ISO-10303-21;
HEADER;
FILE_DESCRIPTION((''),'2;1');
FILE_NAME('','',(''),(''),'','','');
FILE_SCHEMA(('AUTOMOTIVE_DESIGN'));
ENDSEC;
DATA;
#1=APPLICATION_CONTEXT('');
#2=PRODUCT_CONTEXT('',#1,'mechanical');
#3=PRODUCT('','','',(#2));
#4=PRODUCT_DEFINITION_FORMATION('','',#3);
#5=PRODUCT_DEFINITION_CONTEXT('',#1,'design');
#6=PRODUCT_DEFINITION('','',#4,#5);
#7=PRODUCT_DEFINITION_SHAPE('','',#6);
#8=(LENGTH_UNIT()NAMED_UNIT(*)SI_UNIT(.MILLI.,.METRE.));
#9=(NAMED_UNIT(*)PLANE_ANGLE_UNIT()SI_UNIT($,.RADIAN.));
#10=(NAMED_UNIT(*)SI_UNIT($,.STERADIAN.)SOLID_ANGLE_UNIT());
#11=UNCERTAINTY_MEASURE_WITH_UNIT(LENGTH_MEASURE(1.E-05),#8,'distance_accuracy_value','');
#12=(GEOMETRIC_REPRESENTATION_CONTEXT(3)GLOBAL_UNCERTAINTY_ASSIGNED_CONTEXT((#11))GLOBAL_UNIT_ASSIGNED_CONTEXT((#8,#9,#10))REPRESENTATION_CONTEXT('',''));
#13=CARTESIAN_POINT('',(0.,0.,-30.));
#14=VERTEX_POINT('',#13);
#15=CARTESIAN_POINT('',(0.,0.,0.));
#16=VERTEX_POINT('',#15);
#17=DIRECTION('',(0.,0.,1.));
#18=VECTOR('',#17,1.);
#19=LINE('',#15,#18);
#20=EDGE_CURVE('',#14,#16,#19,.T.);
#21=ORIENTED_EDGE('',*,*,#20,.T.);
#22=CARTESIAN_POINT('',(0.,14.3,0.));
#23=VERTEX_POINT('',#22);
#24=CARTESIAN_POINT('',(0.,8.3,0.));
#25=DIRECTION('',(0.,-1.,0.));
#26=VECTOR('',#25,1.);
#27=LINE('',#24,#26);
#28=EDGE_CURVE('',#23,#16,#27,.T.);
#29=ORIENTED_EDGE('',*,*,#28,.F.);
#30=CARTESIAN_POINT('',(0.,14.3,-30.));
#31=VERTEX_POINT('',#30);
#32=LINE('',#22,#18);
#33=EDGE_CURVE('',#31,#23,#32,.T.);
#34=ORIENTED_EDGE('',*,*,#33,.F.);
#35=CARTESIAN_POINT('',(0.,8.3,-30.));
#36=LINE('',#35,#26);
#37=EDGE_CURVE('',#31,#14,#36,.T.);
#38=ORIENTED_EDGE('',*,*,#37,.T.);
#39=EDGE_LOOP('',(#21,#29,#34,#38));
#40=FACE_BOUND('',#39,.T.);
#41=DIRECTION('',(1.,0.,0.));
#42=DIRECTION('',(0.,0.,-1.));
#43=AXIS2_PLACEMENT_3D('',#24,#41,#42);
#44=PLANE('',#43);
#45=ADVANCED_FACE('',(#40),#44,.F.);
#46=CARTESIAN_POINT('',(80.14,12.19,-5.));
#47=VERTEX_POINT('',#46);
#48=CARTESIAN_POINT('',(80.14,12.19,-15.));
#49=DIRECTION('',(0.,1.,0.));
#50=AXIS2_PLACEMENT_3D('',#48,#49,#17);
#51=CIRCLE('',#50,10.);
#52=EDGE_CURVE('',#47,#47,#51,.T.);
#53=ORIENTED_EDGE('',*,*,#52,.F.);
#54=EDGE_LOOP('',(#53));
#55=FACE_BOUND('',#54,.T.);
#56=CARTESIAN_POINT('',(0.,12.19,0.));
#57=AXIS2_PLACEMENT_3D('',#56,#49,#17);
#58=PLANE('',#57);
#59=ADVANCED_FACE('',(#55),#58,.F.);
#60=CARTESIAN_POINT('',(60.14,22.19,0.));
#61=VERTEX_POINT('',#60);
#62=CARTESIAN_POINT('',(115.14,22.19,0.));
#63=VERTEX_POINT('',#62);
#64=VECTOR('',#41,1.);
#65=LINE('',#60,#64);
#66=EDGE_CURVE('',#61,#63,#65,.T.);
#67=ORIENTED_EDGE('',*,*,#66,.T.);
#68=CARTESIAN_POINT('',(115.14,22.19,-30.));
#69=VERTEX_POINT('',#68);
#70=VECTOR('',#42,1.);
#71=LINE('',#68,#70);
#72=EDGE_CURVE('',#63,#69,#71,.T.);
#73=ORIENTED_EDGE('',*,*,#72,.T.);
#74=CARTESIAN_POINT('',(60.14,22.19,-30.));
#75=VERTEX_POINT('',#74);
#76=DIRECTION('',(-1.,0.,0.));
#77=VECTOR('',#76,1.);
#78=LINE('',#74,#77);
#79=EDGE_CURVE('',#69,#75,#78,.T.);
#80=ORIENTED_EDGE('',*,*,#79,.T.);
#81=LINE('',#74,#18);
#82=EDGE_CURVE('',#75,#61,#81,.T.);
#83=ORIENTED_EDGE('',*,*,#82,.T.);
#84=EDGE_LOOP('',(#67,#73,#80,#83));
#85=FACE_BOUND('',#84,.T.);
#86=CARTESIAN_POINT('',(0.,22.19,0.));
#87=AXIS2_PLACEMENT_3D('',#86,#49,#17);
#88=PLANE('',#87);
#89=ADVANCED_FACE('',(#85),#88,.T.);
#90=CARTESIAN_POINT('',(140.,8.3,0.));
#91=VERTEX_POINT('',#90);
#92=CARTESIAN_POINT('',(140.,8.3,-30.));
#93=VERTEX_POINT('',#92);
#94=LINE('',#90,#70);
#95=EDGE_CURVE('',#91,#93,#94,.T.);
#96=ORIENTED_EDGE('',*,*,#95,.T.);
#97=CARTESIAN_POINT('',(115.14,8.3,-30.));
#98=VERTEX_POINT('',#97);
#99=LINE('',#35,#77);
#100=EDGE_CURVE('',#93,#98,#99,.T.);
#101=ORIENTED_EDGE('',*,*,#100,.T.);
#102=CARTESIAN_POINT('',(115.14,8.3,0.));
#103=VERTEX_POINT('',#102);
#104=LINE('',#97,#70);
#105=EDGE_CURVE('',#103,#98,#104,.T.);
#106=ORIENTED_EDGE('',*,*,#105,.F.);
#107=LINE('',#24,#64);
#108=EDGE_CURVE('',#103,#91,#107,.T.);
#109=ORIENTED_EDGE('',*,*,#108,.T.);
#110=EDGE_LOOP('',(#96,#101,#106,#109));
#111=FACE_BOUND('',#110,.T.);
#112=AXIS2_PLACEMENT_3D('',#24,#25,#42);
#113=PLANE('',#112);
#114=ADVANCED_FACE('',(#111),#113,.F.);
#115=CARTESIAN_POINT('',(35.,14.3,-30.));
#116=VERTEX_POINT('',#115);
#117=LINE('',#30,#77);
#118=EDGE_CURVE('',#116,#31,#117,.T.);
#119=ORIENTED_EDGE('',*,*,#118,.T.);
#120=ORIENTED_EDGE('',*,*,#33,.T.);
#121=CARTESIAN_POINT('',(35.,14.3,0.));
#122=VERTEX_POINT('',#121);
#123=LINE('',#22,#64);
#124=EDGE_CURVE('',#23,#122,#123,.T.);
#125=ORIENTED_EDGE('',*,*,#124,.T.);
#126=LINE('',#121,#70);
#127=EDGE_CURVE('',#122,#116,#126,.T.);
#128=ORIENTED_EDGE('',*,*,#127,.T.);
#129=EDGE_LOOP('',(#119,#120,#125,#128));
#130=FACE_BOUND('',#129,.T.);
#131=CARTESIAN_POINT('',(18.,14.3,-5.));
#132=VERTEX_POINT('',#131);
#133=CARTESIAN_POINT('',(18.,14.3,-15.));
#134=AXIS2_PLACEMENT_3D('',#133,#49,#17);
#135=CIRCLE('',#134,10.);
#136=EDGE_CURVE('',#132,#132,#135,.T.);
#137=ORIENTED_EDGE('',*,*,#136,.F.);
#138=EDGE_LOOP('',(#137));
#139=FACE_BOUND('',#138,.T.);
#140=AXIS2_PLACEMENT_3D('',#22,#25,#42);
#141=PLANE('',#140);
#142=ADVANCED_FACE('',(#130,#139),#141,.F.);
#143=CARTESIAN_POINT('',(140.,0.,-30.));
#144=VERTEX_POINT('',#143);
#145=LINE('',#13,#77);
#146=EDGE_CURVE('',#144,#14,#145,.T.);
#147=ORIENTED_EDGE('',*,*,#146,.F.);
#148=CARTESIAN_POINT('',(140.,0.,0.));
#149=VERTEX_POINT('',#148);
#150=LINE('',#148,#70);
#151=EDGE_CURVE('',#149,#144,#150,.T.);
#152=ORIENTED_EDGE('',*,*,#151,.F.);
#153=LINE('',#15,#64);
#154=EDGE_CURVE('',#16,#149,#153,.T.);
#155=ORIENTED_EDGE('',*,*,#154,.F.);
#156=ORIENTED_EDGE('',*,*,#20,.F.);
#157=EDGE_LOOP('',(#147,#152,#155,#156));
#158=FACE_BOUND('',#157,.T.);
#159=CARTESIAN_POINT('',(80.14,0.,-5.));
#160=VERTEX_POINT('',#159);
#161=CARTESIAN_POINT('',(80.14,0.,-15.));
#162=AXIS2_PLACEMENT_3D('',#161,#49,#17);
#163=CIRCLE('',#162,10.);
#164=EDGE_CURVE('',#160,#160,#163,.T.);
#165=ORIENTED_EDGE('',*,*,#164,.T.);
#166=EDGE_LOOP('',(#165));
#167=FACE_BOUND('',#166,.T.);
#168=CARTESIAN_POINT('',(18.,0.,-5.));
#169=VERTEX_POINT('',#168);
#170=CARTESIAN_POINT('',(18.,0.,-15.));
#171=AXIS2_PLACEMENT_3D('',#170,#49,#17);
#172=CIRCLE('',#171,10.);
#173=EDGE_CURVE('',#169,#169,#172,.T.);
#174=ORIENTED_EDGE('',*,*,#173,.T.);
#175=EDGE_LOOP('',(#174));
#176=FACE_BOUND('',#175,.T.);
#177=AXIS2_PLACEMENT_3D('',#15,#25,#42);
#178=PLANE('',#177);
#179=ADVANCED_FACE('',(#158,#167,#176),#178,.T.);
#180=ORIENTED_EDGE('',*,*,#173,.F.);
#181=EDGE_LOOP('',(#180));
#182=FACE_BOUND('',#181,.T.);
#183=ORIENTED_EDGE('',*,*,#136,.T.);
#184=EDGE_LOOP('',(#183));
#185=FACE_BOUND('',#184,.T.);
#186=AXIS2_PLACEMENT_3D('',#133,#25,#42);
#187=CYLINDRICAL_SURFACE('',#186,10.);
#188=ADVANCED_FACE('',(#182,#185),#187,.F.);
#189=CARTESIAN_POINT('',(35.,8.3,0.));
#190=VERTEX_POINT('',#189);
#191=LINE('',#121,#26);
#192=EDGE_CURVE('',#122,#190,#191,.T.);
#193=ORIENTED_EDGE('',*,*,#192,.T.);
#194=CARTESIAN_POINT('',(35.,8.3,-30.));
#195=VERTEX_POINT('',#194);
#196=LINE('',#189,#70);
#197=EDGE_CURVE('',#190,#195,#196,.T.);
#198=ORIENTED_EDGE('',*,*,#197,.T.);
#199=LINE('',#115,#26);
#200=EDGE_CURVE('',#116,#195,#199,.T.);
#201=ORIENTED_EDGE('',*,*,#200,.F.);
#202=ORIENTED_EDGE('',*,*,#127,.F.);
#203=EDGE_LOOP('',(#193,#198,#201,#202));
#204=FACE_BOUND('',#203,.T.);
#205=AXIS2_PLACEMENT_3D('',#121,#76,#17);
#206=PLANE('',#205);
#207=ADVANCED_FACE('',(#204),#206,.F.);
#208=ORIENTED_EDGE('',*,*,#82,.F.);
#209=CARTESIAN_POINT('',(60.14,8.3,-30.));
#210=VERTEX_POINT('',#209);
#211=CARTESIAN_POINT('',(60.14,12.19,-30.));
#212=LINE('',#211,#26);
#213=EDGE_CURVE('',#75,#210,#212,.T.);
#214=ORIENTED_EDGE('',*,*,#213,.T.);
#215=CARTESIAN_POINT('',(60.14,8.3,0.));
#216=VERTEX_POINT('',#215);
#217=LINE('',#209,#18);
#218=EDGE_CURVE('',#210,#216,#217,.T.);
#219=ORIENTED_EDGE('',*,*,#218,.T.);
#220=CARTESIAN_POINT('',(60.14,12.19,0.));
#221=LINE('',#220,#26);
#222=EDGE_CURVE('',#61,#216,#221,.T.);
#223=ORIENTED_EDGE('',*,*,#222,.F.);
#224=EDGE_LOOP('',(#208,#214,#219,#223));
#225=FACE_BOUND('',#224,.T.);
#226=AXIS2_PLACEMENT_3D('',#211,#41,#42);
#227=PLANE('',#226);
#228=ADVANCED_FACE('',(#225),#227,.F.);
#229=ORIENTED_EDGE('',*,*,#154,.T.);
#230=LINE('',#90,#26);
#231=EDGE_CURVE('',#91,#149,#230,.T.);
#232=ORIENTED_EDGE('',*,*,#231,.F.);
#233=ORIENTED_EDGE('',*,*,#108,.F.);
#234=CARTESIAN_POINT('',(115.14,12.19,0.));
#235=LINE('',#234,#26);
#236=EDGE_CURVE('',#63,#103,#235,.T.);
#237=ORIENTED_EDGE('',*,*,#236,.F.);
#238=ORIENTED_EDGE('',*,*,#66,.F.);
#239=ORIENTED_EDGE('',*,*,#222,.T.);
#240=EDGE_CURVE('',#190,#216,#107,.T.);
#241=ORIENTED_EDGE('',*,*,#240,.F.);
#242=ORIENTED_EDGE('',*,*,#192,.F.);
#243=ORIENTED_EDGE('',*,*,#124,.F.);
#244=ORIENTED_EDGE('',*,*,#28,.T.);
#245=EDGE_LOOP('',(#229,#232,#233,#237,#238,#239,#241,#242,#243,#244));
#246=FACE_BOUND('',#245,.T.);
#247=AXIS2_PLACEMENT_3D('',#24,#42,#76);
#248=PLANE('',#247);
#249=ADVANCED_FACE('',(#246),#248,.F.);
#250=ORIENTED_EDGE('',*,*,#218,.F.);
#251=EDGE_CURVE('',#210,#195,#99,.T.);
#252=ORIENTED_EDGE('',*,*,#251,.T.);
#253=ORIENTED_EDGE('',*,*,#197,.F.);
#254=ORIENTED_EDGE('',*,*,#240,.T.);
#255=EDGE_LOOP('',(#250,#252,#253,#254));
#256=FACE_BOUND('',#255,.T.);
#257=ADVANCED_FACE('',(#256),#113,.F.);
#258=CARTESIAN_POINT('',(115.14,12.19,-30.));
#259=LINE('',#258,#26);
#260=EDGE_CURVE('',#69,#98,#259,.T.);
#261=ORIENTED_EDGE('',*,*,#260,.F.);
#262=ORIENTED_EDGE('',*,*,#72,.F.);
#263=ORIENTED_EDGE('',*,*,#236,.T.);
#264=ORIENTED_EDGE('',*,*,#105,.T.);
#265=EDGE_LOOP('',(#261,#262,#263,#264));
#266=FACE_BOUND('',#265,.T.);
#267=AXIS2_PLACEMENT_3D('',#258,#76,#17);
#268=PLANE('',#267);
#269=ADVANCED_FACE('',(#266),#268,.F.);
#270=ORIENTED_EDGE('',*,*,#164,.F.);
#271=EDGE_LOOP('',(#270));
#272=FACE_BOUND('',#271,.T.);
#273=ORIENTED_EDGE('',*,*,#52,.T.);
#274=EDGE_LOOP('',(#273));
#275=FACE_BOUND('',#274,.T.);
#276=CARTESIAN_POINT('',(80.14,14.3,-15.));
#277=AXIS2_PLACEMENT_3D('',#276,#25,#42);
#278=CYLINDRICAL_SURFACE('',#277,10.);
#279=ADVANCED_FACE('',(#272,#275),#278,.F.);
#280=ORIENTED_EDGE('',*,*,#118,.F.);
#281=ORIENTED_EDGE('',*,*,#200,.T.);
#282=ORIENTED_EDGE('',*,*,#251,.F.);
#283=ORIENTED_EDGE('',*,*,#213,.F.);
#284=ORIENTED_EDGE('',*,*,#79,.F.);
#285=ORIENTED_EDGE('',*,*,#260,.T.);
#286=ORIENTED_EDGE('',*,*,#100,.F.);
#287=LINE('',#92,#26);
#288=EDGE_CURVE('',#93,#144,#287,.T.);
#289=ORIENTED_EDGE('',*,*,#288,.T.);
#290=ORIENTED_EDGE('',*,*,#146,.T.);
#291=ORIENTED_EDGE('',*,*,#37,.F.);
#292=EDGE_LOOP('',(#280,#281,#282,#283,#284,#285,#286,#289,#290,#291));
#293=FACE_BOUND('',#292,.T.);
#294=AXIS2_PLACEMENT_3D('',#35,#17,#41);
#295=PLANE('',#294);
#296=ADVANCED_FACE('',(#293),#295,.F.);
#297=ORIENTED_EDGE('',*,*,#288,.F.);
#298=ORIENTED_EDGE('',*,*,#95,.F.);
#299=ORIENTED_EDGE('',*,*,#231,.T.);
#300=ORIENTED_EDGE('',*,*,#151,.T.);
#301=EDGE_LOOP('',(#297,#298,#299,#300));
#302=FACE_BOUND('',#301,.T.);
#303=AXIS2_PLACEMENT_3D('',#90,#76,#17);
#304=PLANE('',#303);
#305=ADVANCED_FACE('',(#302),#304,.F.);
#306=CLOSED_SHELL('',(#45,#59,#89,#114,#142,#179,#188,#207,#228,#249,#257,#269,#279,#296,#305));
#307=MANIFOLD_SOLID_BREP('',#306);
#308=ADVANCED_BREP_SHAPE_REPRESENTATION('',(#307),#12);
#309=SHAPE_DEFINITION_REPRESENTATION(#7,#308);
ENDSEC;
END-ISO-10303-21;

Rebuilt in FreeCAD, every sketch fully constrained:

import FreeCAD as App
import Part
import Sketcher
Q = App.Units.Quantity

doc = App.newDocument("Part")
body = doc.addObject("PartDesign::Body", "Body")

# Sketch on XZ plane
sketch1 = body.newObject("Sketcher::SketchObject", "Sketch")
sketch1.AttachmentSupport = (doc.getObject("XZ_Plane"), [""])
sketch1.MapMode = "FlatFace"
sketch1.addGeometry([
    Part.LineSegment(App.Vector(0, -30, 0), App.Vector(0, 0, 0)),
    Part.LineSegment(App.Vector(0, 0, 0), App.Vector(140, 0, 0)),
    Part.LineSegment(App.Vector(140, 0, 0), App.Vector(140, -30, 0)),
    Part.LineSegment(App.Vector(140, -30, 0), App.Vector(0, -30, 0)),
], False)
sketch1.addConstraint([
    Sketcher.Constraint("Coincident", 0, 2, 1, 1),
    Sketcher.Constraint("Coincident", 1, 2, 2, 1),
    Sketcher.Constraint("Coincident", 2, 2, 3, 1),
    Sketcher.Constraint("Coincident", 3, 2, 0, 1),
    Sketcher.Constraint("Vertical", 0),
    Sketcher.Constraint("Horizontal", 1),
    Sketcher.Constraint("Vertical", 2),
    Sketcher.Constraint("Horizontal", 3),
    Sketcher.Constraint("Coincident", 0, 2, -1, 1),
    Sketcher.Constraint("DistanceX", 1, 1, 1, 2, Q("140 mm")),
    Sketcher.Constraint("DistanceY", 0, 1, 0, 2, Q("30 mm")),
])
pad1 = body.newObject("PartDesign::Pad", "Pad")
pad1.Profile = sketch1
pad1.Length = 8.3
pad1.Reversed = True

# Sketch on XZ plane
sketch2 = body.newObject("Sketcher::SketchObject", "Sketch001")
sketch2.AttachmentSupport = (doc.getObject("XZ_Plane"), [""])
sketch2.MapMode = "FlatFace"
sketch2.AttachmentOffset = App.Placement(App.Vector(0, 0, -8.3), App.Rotation())
sketch2.addGeometry([
    Part.LineSegment(App.Vector(0, -30, 0), App.Vector(0, 0, 0)),
    Part.LineSegment(App.Vector(0, 0, 0), App.Vector(35, 0, 0)),
    Part.LineSegment(App.Vector(35, 0, 0), App.Vector(35, -30, 0)),
    Part.LineSegment(App.Vector(35, -30, 0), App.Vector(0, -30, 0)),
], False)
sketch2.addConstraint([
    Sketcher.Constraint("Coincident", 0, 2, 1, 1),
    Sketcher.Constraint("Coincident", 1, 2, 2, 1),
    Sketcher.Constraint("Coincident", 2, 2, 3, 1),
    Sketcher.Constraint("Coincident", 3, 2, 0, 1),
    Sketcher.Constraint("Vertical", 0),
    Sketcher.Constraint("Horizontal", 1),
    Sketcher.Constraint("Vertical", 2),
    Sketcher.Constraint("Horizontal", 3),
    Sketcher.Constraint("Coincident", 0, 2, -1, 1),
    Sketcher.Constraint("DistanceX", 1, 1, 1, 2, Q("35 mm")),
    Sketcher.Constraint("DistanceY", 0, 1, 0, 2, Q("30 mm")),
])
pad2 = body.newObject("PartDesign::Pad", "Pad001")
pad2.Profile = sketch2
pad2.Length = 6
pad2.Reversed = True

# Sketch on XZ plane
sketch3 = body.newObject("Sketcher::SketchObject", "Sketch002")
sketch3.AttachmentSupport = (doc.getObject("XZ_Plane"), [""])
sketch3.MapMode = "FlatFace"
sketch3.AttachmentOffset = App.Placement(App.Vector(0, 0, -8.3), App.Rotation())
sketch3.addGeometry([
    Part.Circle(App.Vector(18, -15, 0), App.Vector(0, 0, 1), 10),
    Part.Circle(App.Vector(80.14, -15, 0), App.Vector(0, 0, 1), 10),
], False)
sketch3.addConstraint([
    Sketcher.Constraint("Equal", 0, 1),
    Sketcher.Constraint("Horizontal", 0, 3, 1, 3),
    Sketcher.Constraint("Diameter", 0, Q("20 mm")),
    Sketcher.Constraint("DistanceX", -1, 1, 0, 3, Q("18 mm")),
    Sketcher.Constraint("DistanceY", 0, 3, -1, 1, Q("15 mm")),
    Sketcher.Constraint("DistanceX", -1, 1, 1, 3, Q("80.14 mm")),
])
pocket1 = body.newObject("PartDesign::Pocket", "Pocket")
pocket1.Profile = sketch3
pocket1.Type = "ThroughAll"
pocket1.Midplane = True

# Sketch on XZ plane
sketch4 = body.newObject("Sketcher::SketchObject", "Sketch003")
sketch4.AttachmentSupport = (doc.getObject("XZ_Plane"), [""])
sketch4.MapMode = "FlatFace"
sketch4.AttachmentOffset = App.Placement(App.Vector(0, 0, -8.3), App.Rotation())
sketch4.addGeometry([
    Part.LineSegment(App.Vector(60.14, -30, 0), App.Vector(60.14, 0, 0)),
    Part.LineSegment(App.Vector(60.14, 0, 0), App.Vector(115.14, 0, 0)),
    Part.LineSegment(App.Vector(115.14, 0, 0), App.Vector(115.14, -30, 0)),
    Part.LineSegment(App.Vector(115.14, -30, 0), App.Vector(60.14, -30, 0)),
], False)
sketch4.addConstraint([
    Sketcher.Constraint("Coincident", 0, 2, 1, 1),
    Sketcher.Constraint("Coincident", 1, 2, 2, 1),
    Sketcher.Constraint("Coincident", 2, 2, 3, 1),
    Sketcher.Constraint("Coincident", 3, 2, 0, 1),
    Sketcher.Constraint("Vertical", 0),
    Sketcher.Constraint("Horizontal", 1),
    Sketcher.Constraint("Vertical", 2),
    Sketcher.Constraint("Horizontal", 3),
    Sketcher.Constraint("PointOnObject", 0, 2, -1),
    Sketcher.Constraint("DistanceX", 1, 1, 1, 2, Q("55 mm")),
    Sketcher.Constraint("DistanceY", 0, 1, 0, 2, Q("30 mm")),
    Sketcher.Constraint("DistanceX", -1, 1, 0, 2, Q("60.14 mm")),
])
pad3 = body.newObject("PartDesign::Pad", "Pad002")
pad3.Profile = sketch4
pad3.Length = 3.89
pad3.Reversed = True

# Sketch on XZ plane
sketch5 = body.newObject("Sketcher::SketchObject", "Sketch004")
sketch5.AttachmentSupport = (doc.getObject("XZ_Plane"), [""])
sketch5.MapMode = "FlatFace"
sketch5.addGeometry(Part.Circle(App.Vector(80.14, -15, 0), App.Vector(0, 0, 1), 10), False)
sketch5.addConstraint([
    Sketcher.Constraint("Diameter", 0, Q("20 mm")),
    Sketcher.Constraint("DistanceY", 0, 3, -1, 1, Q("15 mm")),
    Sketcher.Constraint("DistanceX", -1, 1, 0, 3, Q("80.14 mm")),
])
pocket2 = body.newObject("PartDesign::Pocket", "Pocket001")
pocket2.Profile = sketch5
pocket2.Type = "ThroughAll"

# Sketch on XZ plane
sketch6 = body.newObject("Sketcher::SketchObject", "Sketch005")
sketch6.AttachmentSupport = (doc.getObject("XZ_Plane"), [""])
sketch6.MapMode = "FlatFace"
sketch6.AttachmentOffset = App.Placement(App.Vector(0, 0, -12.19), App.Rotation())
sketch6.addGeometry([
    Part.LineSegment(App.Vector(60.14, -30, 0), App.Vector(60.14, 0, 0)),
    Part.LineSegment(App.Vector(60.14, 0, 0), App.Vector(115.14, 0, 0)),
    Part.LineSegment(App.Vector(115.14, 0, 0), App.Vector(115.14, -30, 0)),
    Part.LineSegment(App.Vector(115.14, -30, 0), App.Vector(60.14, -30, 0)),
], False)
sketch6.addConstraint([
    Sketcher.Constraint("Coincident", 0, 2, 1, 1),
    Sketcher.Constraint("Coincident", 1, 2, 2, 1),
    Sketcher.Constraint("Coincident", 2, 2, 3, 1),
    Sketcher.Constraint("Coincident", 3, 2, 0, 1),
    Sketcher.Constraint("Vertical", 0),
    Sketcher.Constraint("Horizontal", 1),
    Sketcher.Constraint("Vertical", 2),
    Sketcher.Constraint("Horizontal", 3),
    Sketcher.Constraint("PointOnObject", 0, 2, -1),
    Sketcher.Constraint("DistanceX", 1, 1, 1, 2, Q("55 mm")),
    Sketcher.Constraint("DistanceY", 0, 1, 0, 2, Q("30 mm")),
    Sketcher.Constraint("DistanceX", -1, 1, 0, 2, Q("60.14 mm")),
])
pad4 = body.newObject("PartDesign::Pad", "Pad003")
pad4.Profile = sketch6
pad4.Length = 10
pad4.Reversed = True

doc.recompute()
